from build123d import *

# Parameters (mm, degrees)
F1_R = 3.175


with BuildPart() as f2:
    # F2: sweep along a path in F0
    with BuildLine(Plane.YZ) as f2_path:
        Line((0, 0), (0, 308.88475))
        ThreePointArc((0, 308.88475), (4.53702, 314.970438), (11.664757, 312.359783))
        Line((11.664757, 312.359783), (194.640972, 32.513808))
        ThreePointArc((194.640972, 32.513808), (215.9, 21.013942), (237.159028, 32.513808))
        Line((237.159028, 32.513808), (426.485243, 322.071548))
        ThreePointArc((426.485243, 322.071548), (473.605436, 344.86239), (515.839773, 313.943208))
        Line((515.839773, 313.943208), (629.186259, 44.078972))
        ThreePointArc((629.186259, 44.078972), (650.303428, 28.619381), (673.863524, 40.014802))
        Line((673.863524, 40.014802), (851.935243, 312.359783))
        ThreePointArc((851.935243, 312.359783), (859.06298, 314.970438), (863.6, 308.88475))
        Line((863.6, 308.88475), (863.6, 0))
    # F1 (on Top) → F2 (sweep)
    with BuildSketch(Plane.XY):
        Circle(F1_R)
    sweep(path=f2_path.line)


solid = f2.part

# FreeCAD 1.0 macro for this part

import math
import FreeCAD as App
import Part
import Sketcher
Q = App.Units.Quantity

doc = App.newDocument("Part")
body = doc.addObject("PartDesign::Body", "Body")

# Sketch on XY plane
sketch1 = body.newObject("Sketcher::SketchObject", "Sketch")
sketch1.AttachmentSupport = (doc.getObject("XY_Plane"), [""])
sketch1.MapMode = "FlatFace"
sketch1.addGeometry(Part.Circle(App.Vector(0, 0, 0), App.Vector(0, 0, 1), 3.175), False)
sketch1.addConstraint([
    Sketcher.Constraint("Coincident", 0, 3, -1, 1),
    Sketcher.Constraint("Diameter", 0, Q("0.25 in")),
])

# Sketch on YZ plane
sketch2 = body.newObject("Sketcher::SketchObject", "Sketch001")
sketch2.AttachmentSupport = (doc.getObject("YZ_Plane"), [""])
sketch2.MapMode = "FlatFace"
sketch2.addGeometry([
    Part.LineSegment(App.Vector(0, 0, 0), App.Vector(0, 308.88475, 0)),  # 0
    Part.ArcOfCircle(Part.Circle(App.Vector(6.35, 308.88475, 0), App.Vector(0, 0, 1), 6.35), math.radians(33.178511), math.radians(179.999997)),  # 1
    Part.LineSegment(App.Vector(11.664757, 312.359783, 0), App.Vector(194.640972, 32.513808, 0)),  # 2
    Part.ArcOfCircle(Part.Circle(App.Vector(215.9, 46.413942, 0), App.Vector(0, 0, 1), 25.4), math.radians(-146.821488), math.radians(-33.178512)),  # 3
    Part.LineSegment(App.Vector(237.159028, 32.513808, 0), App.Vector(426.485243, 322.071548, 0)),  # 4
    Part.ArcOfCircle(Part.Circle(App.Vector(469.003299, 294.271281, 0), App.Vector(0, 0, 1), 50.8), math.radians(22.783038), math.radians(146.821489)),  # 5
    Part.LineSegment(App.Vector(515.839773, 313.943208, 0), App.Vector(629.186259, 44.078972, 0)),  # 6
    Part.ArcOfCircle(Part.Circle(App.Vector(652.604496, 53.914936, 0), App.Vector(0, 0, 1), 25.4), math.radians(-157.216962), math.radians(-33.178511)),  # 7
    Part.LineSegment(App.Vector(673.863524, 40.014802, 0), App.Vector(851.935243, 312.359783, 0)),  # 8
    Part.ArcOfCircle(Part.Circle(App.Vector(857.25, 308.88475, 0), App.Vector(0, 0, 1), 6.35), math.radians(0.000003), math.radians(146.821489)),  # 9
    Part.LineSegment(App.Vector(863.6, 308.88475, 0), App.Vector(863.6, 0, 0)),  # 10
], False)
sketch2.addConstraint([
    Sketcher.Constraint("Coincident", 0, 2, 1, 2),
    Sketcher.Constraint("Coincident", 1, 1, 2, 1),
    Sketcher.Constraint("Coincident", 2, 2, 3, 1),
    Sketcher.Constraint("Coincident", 3, 2, 4, 1),
    Sketcher.Constraint("Coincident", 4, 2, 5, 2),
    Sketcher.Constraint("Coincident", 5, 1, 6, 1),
    Sketcher.Constraint("Coincident", 6, 2, 7, 1),
    Sketcher.Constraint("Coincident", 7, 2, 8, 1),
    Sketcher.Constraint("Coincident", 8, 2, 9, 2),
    Sketcher.Constraint("Coincident", 9, 1, 10, 1),
    Sketcher.Constraint("Vertical", 0),
    Sketcher.Constraint("Vertical", 10),
    Sketcher.Constraint("Coincident", 0, 1, -1, 1),
    Sketcher.Constraint("PointOnObject", 10, 2, -1),
    Sketcher.Constraint("Radius", 3, Q("1 in")),
    Sketcher.Constraint("Radius", 5, Q("2 in")),
    Sketcher.Constraint("Radius", 7, Q("1 in")),
    Sketcher.Constraint("Radius", 1, Q("0.25 in")),
    Sketcher.Constraint("Radius", 9, Q("0.25 in")),
    Sketcher.Constraint("DistanceX", -1, 1, 9, 1, Q("34 in")),
    Sketcher.Constraint("DistanceX", -1, 1, 3, 3, Q("8.5 in")),
    Sketcher.Constraint("DistanceY", 0, 1, 0, 2, 308.88475),
    Sketcher.Constraint("DistanceY", 10, 2, 10, 1, 308.88475),
    Sketcher.Constraint("DistanceX", -1, 1, 5, 3, 469.003299),
    Sketcher.Constraint("DistanceY", 5, 3, 1, 1, 18.088502),
    Sketcher.Constraint("DistanceY", 3, 2, 5, 1, 281.4294),
    Sketcher.Constraint("Distance", 4, 345.95968),
    Sketcher.Constraint("Distance", 8, 325.394108),
    Sketcher.Constraint("DistanceY", -1, 1, 1, 3, 308.88475),
    Sketcher.Constraint("DistanceY", -1, 1, 3, 3, 46.413942),
    Sketcher.Constraint("DistanceY", -1, 1, 5, 3, 294.271281),
    Sketcher.Constraint("DistanceY", -1, 1, 9, 3, 308.88475),
    Sketcher.Constraint("DistanceX", -1, 1, 2, 2, 194.640972),
    Sketcher.Constraint("DistanceX", -1, 1, 3, 2, 237.159028),
    Sketcher.Constraint("DistanceX", -1, 1, 6, 2, 629.186259),
    Sketcher.Constraint("DistanceY", 6, 2, 5, 3, 250.192309),
    Sketcher.Constraint("DistanceX", 7, 3, 7, 2, 21.259028),
    Sketcher.Constraint("DistanceY", 7, 2, 6, 2, 4.06417),
])
doc.recompute()

additivepipe = body.newObject("PartDesign::AdditivePipe", "AdditivePipe")
additivepipe.Profile = sketch1
additivepipe.Spine = (sketch2, ["Edge1", "Edge2", "Edge3", "Edge4", "Edge5", "Edge6", "Edge7", "Edge8", "Edge9", "Edge10", "Edge11"])

doc.recompute()
